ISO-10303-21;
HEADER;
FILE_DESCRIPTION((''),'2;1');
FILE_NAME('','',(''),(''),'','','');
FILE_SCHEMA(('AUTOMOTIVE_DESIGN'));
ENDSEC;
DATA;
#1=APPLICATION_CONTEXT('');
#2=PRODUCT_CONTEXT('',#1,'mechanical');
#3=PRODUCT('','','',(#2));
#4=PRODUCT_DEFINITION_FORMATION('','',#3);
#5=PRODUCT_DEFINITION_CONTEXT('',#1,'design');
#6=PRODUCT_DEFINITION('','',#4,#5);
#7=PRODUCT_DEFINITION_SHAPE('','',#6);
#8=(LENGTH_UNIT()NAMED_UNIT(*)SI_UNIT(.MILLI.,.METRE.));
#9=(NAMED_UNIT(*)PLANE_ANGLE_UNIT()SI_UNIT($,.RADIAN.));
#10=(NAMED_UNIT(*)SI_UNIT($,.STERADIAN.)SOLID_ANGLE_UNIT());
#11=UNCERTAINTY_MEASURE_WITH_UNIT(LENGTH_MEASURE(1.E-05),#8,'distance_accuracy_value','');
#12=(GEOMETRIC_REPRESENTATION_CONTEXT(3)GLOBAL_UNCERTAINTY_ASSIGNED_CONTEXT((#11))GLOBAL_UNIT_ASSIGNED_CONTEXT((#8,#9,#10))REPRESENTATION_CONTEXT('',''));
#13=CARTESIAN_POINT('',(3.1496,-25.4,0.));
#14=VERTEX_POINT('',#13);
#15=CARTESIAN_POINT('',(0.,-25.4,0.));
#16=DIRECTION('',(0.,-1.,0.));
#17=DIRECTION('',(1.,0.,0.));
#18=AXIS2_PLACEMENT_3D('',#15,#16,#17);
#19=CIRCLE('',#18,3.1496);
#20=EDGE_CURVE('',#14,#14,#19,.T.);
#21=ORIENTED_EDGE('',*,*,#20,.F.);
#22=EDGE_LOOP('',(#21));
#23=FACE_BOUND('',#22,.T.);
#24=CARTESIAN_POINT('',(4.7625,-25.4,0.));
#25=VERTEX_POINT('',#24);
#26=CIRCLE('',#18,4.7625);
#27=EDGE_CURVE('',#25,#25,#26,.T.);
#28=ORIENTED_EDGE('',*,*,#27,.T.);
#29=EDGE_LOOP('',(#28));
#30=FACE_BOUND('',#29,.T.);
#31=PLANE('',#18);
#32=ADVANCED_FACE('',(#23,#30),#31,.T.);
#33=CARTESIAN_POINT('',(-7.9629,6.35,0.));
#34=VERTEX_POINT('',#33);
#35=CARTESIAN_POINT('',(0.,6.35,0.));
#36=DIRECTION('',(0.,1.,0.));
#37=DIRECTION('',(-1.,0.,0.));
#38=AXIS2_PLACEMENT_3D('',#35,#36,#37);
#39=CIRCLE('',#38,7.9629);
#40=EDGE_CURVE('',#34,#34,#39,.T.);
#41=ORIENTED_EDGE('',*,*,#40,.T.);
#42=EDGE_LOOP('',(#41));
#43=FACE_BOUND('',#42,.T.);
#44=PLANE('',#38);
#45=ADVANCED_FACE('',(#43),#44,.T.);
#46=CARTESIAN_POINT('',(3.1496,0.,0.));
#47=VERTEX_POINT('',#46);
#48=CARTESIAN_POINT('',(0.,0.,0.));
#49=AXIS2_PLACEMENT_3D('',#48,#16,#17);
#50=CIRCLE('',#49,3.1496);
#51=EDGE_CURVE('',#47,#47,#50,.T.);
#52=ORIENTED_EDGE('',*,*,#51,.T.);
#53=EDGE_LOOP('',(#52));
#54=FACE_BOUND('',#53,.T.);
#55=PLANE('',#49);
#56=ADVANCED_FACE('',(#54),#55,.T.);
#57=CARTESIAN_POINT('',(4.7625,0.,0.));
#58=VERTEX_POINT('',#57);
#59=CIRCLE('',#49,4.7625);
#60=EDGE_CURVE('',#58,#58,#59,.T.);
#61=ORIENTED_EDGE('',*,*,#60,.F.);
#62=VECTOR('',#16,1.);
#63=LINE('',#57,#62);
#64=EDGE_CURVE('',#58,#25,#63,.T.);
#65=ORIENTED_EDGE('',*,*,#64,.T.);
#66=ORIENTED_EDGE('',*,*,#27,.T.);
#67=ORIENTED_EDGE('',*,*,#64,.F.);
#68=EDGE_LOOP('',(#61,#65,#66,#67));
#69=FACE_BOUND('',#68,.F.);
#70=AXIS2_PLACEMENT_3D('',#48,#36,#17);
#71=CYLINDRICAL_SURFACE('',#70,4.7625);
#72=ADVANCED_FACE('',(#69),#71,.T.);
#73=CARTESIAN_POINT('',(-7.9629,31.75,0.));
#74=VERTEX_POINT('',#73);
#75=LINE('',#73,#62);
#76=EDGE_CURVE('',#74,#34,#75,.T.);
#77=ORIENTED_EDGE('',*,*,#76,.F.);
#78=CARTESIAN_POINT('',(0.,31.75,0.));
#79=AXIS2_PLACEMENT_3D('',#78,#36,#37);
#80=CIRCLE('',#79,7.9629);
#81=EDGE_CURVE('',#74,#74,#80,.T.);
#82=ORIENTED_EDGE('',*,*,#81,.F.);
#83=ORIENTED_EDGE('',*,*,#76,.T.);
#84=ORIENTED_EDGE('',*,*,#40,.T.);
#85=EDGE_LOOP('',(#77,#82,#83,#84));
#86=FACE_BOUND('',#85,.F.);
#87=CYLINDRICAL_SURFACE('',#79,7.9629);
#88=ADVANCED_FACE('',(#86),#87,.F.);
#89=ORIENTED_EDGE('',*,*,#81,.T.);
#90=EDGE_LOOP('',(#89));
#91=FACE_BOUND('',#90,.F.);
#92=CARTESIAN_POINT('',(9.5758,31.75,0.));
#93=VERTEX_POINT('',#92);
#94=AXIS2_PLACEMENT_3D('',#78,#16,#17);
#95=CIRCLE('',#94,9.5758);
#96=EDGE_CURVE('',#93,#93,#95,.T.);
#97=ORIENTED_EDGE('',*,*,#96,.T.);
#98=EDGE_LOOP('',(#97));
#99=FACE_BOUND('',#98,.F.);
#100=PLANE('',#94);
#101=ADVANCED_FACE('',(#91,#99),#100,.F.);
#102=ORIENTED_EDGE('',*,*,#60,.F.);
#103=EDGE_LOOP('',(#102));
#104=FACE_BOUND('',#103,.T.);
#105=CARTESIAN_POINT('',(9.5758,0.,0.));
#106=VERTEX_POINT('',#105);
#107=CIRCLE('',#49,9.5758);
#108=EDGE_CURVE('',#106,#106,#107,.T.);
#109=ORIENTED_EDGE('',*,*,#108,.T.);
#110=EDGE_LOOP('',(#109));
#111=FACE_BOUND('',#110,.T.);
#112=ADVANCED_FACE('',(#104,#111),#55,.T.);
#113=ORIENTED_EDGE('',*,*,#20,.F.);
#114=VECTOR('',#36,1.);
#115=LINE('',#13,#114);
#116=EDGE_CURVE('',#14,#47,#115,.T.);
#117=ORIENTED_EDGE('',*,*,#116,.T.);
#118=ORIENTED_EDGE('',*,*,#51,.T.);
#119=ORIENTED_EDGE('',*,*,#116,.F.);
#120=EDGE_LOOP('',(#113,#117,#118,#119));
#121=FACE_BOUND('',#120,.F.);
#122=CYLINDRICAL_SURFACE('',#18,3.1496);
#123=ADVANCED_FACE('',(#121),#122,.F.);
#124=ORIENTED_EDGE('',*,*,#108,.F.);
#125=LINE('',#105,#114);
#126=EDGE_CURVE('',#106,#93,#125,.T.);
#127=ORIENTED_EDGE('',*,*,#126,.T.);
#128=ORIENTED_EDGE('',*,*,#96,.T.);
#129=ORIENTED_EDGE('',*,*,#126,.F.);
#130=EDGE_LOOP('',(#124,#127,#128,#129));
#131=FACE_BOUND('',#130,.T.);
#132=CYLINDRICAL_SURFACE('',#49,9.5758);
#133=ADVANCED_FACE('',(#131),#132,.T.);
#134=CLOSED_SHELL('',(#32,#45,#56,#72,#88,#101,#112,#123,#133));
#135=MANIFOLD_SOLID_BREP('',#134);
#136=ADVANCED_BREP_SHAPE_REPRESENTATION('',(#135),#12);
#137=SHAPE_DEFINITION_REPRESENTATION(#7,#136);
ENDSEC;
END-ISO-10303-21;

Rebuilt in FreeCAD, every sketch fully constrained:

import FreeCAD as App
import Part
import Sketcher
Q = App.Units.Quantity

doc = App.newDocument("Part")
body = doc.addObject("PartDesign::Body", "Body")

# Sketch on XZ plane
sketch1 = doc.addObject("Sketcher::SketchObject", "Sketch")
body.addObject(sketch1)
sketch1.AttachmentSupport = (doc.XZ_Plane, [""])
sketch1.MapMode = "FlatFace"
sketch1.addGeometry(Part.Circle(App.Vector(0, 0, 0), App.Vector(0, 0, 1), 10), False)
sketch1.addConstraint([
    Sketcher.Constraint("Coincident", 0, 3, -1, 1),
    Sketcher.Constraint("Diameter", 0, Q("0.754 in")),
])
pad1 = doc.addObject("PartDesign::Pad", "Pad")
body.addObject(pad1)
pad1.Profile = sketch1
pad1.Length = Q("1.25 in")
pad1.Reversed = True

# Sketch on XZ plane
sketch2 = doc.addObject("Sketcher::SketchObject", "Sketch001")
body.addObject(sketch2)
sketch2.AttachmentSupport = (doc.XZ_Plane, [""])
sketch2.MapMode = "FlatFace"
sketch2.AttachmentOffset = App.Placement(App.Vector(0, 0, -1.25 * 25.4), App.Rotation())
sketch2.addGeometry(Part.Circle(App.Vector(0, 0, 0), App.Vector(0, 0, 1), 8), False)
sketch2.addConstraint([
    Sketcher.Constraint("Coincident", 0, 3, -1, 1),
    Sketcher.Constraint("Diameter", 0, Q("0.627 in")),
])
pocket1 = doc.addObject("PartDesign::Pocket", "Pocket")
body.addObject(pocket1)
pocket1.Profile = sketch2
pocket1.Length = Q("1 in")
pocket1.Reversed = True

# Sketch on XZ plane
sketch3 = doc.addObject("Sketcher::SketchObject", "Sketch002")
body.addObject(sketch3)
sketch3.AttachmentSupport = (doc.XZ_Plane, [""])
sketch3.MapMode = "FlatFace"
sketch3.addGeometry(Part.Circle(App.Vector(0, 0, 0), App.Vector(0, 0, 1), 4.8), False)
sketch3.addConstraint([
    Sketcher.Constraint("Coincident", 0, 3, -1, 1),
    Sketcher.Constraint("Diameter", 0, Q("0.375 in")),
])
pad2 = doc.addObject("PartDesign::Pad", "Pad001")
body.addObject(pad2)
pad2.Profile = sketch3
pad2.Length = Q("1 in")

# Sketch on XZ plane
sketch4 = doc.addObject("Sketcher::SketchObject", "Sketch003")
body.addObject(sketch4)
sketch4.AttachmentSupport = (doc.XZ_Plane, [""])
sketch4.MapMode = "FlatFace"
sketch4.AttachmentOffset = App.Placement(App.Vector(0, 0, 1 * 25.4), App.Rotation())
sketch4.addGeometry(Part.Circle(App.Vector(0, 0, 0), App.Vector(0, 0, 1), 3.1), False)
sketch4.addConstraint([
    Sketcher.Constraint("Coincident", 0, 3, -1, 1),
    Sketcher.Constraint("Diameter", 0, Q("0.248 in")),
])
pocket2 = doc.addObject("PartDesign::Pocket", "Pocket001")
body.addObject(pocket2)
pocket2.Profile = sketch4
pocket2.Length = Q("1 in")

doc.recompute()
